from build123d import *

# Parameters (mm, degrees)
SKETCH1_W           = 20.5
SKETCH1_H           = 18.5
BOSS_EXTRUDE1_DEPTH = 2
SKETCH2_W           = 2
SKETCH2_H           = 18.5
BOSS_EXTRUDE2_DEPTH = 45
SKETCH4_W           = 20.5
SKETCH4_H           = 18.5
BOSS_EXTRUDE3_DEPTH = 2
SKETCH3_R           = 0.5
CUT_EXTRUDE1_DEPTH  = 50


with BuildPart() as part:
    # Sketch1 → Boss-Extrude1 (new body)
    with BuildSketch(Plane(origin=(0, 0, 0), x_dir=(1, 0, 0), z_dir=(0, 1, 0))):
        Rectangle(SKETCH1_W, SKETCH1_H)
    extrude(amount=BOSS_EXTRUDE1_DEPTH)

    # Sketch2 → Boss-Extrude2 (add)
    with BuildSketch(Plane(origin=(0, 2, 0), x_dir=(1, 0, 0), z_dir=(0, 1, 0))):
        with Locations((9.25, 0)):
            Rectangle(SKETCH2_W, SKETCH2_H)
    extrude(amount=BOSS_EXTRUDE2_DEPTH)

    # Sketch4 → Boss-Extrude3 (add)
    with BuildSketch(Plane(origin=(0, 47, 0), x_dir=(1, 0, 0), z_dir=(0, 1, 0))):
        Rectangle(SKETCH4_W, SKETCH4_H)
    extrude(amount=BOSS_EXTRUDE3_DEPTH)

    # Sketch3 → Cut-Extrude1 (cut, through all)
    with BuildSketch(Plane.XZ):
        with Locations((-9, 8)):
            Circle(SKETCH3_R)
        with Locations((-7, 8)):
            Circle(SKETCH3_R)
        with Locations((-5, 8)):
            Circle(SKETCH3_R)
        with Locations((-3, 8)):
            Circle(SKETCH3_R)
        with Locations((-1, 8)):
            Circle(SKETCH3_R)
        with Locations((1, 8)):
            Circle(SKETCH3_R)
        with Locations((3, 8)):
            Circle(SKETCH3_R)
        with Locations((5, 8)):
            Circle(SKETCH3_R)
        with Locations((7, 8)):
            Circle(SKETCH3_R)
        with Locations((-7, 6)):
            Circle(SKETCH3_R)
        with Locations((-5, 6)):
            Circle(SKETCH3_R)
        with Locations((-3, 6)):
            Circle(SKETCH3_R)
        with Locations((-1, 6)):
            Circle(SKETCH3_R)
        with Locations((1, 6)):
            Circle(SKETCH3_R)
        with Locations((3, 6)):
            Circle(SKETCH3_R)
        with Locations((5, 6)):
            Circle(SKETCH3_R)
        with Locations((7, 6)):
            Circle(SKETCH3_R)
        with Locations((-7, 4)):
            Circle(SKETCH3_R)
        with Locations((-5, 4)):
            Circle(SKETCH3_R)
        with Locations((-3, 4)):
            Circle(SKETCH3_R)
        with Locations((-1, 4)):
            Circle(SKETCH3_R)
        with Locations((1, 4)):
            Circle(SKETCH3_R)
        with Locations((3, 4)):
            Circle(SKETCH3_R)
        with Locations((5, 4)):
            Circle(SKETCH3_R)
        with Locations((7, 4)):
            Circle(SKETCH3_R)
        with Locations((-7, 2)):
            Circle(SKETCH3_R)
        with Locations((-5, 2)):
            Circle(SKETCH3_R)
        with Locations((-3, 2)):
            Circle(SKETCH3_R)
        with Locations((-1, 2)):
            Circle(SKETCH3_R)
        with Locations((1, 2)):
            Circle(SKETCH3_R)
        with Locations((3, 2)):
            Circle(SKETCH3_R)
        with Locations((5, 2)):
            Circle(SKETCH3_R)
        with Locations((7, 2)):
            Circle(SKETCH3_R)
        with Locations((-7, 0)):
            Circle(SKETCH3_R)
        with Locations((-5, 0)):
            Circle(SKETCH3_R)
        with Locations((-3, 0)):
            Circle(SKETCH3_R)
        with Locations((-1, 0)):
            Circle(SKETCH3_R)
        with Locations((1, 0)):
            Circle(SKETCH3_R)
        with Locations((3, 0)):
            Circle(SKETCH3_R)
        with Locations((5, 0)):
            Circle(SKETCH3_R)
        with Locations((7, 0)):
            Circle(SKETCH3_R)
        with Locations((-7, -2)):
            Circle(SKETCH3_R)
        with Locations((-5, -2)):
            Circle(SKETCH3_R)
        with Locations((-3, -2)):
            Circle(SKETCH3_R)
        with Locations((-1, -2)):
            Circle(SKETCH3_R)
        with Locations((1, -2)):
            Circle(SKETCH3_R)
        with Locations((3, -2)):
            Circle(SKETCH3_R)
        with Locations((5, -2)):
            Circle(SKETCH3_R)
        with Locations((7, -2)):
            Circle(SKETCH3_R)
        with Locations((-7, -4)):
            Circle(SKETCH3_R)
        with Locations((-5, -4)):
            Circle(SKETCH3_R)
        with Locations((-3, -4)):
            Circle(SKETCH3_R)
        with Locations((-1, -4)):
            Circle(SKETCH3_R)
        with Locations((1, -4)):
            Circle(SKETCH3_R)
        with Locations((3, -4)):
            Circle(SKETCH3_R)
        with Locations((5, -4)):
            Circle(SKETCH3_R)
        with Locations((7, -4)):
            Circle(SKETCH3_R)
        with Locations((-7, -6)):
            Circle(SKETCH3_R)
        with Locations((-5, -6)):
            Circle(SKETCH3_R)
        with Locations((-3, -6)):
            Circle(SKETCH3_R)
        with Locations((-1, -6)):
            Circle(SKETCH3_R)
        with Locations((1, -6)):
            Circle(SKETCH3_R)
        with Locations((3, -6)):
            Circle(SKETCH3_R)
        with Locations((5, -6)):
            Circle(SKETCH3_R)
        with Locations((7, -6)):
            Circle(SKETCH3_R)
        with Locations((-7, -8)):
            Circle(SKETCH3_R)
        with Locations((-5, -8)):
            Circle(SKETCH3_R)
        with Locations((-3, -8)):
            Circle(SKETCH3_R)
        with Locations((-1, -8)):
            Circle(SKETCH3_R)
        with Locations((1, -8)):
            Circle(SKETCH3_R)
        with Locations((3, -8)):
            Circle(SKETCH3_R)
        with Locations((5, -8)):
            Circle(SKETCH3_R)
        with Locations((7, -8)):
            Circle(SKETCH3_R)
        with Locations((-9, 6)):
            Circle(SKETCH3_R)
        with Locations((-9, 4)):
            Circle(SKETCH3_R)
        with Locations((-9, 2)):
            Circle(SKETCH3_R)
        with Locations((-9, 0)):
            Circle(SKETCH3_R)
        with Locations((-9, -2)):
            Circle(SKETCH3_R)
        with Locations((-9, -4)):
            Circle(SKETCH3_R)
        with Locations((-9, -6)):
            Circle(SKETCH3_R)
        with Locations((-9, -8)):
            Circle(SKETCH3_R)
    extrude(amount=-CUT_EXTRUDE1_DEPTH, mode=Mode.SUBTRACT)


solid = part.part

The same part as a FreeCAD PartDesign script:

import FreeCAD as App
import Part
import Sketcher
from FreeCAD import Vector

doc = App.newDocument("Part")
body = doc.addObject("PartDesign::Body", "Body")

sketch1 = body.newObject("Sketcher::SketchObject", "Sketch")
sketch1.AttachmentSupport = (doc.getObject("XZ_Plane"), [""])
sketch1.MapMode = "FlatFace"
sketch1.addGeometry(Part.LineSegment(Vector(-10.25, -9.25, 0), Vector(-10.25, 9.25, 0)), False)
sketch1.addGeometry(Part.LineSegment(Vector(-10.25, 9.25, 0), Vector(10.25, 9.25, 0)), False)
sketch1.addGeometry(Part.LineSegment(Vector(10.25, 9.25, 0), Vector(10.25, -9.25, 0)), False)
sketch1.addGeometry(Part.LineSegment(Vector(10.25, -9.25, 0), Vector(-10.25, -9.25, 0)), False)
sketch1.addConstraint(Sketcher.Constraint("Coincident", 0, 2, 1, 1))
sketch1.addConstraint(Sketcher.Constraint("Coincident", 1, 2, 2, 1))
sketch1.addConstraint(Sketcher.Constraint("Coincident", 2, 2, 3, 1))
sketch1.addConstraint(Sketcher.Constraint("Coincident", 3, 2, 0, 1))
sketch1.addConstraint(Sketcher.Constraint("Vertical", 0))
sketch1.addConstraint(Sketcher.Constraint("Horizontal", 1))
sketch1.addConstraint(Sketcher.Constraint("Vertical", 2))
sketch1.addConstraint(Sketcher.Constraint("Horizontal", 3))
sketch1.addConstraint(Sketcher.Constraint("Symmetric", 0, 2, 2, 2, -1, 1))
sketch1.addConstraint(Sketcher.Constraint("DistanceX", 1, 1, 1, 2, 20.5))
sketch1.addConstraint(Sketcher.Constraint("DistanceY", 0, 1, 0, 2, 18.5))
pad1 = body.newObject("PartDesign::Pad", "Pad")
pad1.Profile = sketch1
pad1.Length = 2
pad1.Reversed = True

sketch2 = body.newObject("Sketcher::SketchObject", "Sketch001")
sketch2.AttachmentSupport = (doc.getObject("XZ_Plane"), [""])
sketch2.MapMode = "FlatFace"
sketch2.AttachmentOffset = App.Placement(Vector(0, 0, -2), App.Rotation())
sketch2.addGeometry(Part.LineSegment(Vector(8.25, -9.25, 0), Vector(8.25, 9.25, 0)), False)
sketch2.addGeometry(Part.LineSegment(Vector(8.25, 9.25, 0), Vector(10.25, 9.25, 0)), False)
sketch2.addGeometry(Part.LineSegment(Vector(10.25, 9.25, 0), Vector(10.25, -9.25, 0)), False)
sketch2.addGeometry(Part.LineSegment(Vector(10.25, -9.25, 0), Vector(8.25, -9.25, 0)), False)
sketch2.addConstraint(Sketcher.Constraint("Coincident", 0, 2, 1, 1))
sketch2.addConstraint(Sketcher.Constraint("Coincident", 1, 2, 2, 1))
sketch2.addConstraint(Sketcher.Constraint("Coincident", 2, 2, 3, 1))
sketch2.addConstraint(Sketcher.Constraint("Coincident", 3, 2, 0, 1))
sketch2.addConstraint(Sketcher.Constraint("Vertical", 0))
sketch2.addConstraint(Sketcher.Constraint("Horizontal", 1))
sketch2.addConstraint(Sketcher.Constraint("Vertical", 2))
sketch2.addConstraint(Sketcher.Constraint("Horizontal", 3))
sketch2.addConstraint(Sketcher.Constraint("DistanceX", 1, 1, 1, 2, 2.0))
sketch2.addConstraint(Sketcher.Constraint("DistanceY", 0, 1, 0, 2, 18.5))
sketch2.addConstraint(Sketcher.Constraint("DistanceX", -1, 1, 0, 2, 8.25))
sketch2.addConstraint(Sketcher.Constraint("DistanceY", -1, 1, 0, 2, 9.25))
pad2 = body.newObject("PartDesign::Pad", "Pad001")
pad2.Profile = sketch2
pad2.Length = 45
pad2.Reversed = True

sketch3 = body.newObject("Sketcher::SketchObject", "Sketch002")
sketch3.AttachmentSupport = (doc.getObject("XZ_Plane"), [""])
sketch3.MapMode = "FlatFace"
sketch3.AttachmentOffset = App.Placement(Vector(0, 0, -47), App.Rotation())
sketch3.addGeometry(Part.LineSegment(Vector(-10.25, -9.25, 0), Vector(-10.25, 9.25, 0)), False)
sketch3.addGeometry(Part.LineSegment(Vector(-10.25, 9.25, 0), Vector(10.25, 9.25, 0)), False)
sketch3.addGeometry(Part.LineSegment(Vector(10.25, 9.25, 0), Vector(10.25, -9.25, 0)), False)
sketch3.addGeometry(Part.LineSegment(Vector(10.25, -9.25, 0), Vector(-10.25, -9.25, 0)), False)
sketch3.addConstraint(Sketcher.Constraint("Coincident", 0, 2, 1, 1))
sketch3.addConstraint(Sketcher.Constraint("Coincident", 1, 2, 2, 1))
sketch3.addConstraint(Sketcher.Constraint("Coincident", 2, 2, 3, 1))
sketch3.addConstraint(Sketcher.Constraint("Coincident", 3, 2, 0, 1))
sketch3.addConstraint(Sketcher.Constraint("Vertical", 0))
sketch3.addConstraint(Sketcher.Constraint("Horizontal", 1))
sketch3.addConstraint(Sketcher.Constraint("Vertical", 2))
sketch3.addConstraint(Sketcher.Constraint("Horizontal", 3))
sketch3.addConstraint(Sketcher.Constraint("Symmetric", 0, 2, 2, 2, -1, 1))
sketch3.addConstraint(Sketcher.Constraint("DistanceX", 1, 1, 1, 2, 20.5))
sketch3.addConstraint(Sketcher.Constraint("DistanceY", 0, 1, 0, 2, 18.5))
pad3 = body.newObject("PartDesign::Pad", "Pad002")
pad3.Profile = sketch3
pad3.Length = 2
pad3.Reversed = True

sketch4 = body.newObject("Sketcher::SketchObject", "Sketch003")
sketch4.AttachmentSupport = (doc.getObject("XZ_Plane"), [""])
sketch4.MapMode = "FlatFace"
sketch4.addGeometry(Part.Circle(Vector(-9, 8, 0), Vector(0, 0, 1), 0.5), False)
sketch4.addGeometry(Part.Circle(Vector(-7, 8, 0), Vector(0, 0, 1), 0.5), False)
sketch4.addGeometry(Part.Circle(Vector(-5, 8, 0), Vector(0, 0, 1), 0.5), False)
sketch4.addGeometry(Part.Circle(Vector(-3, 8, 0), Vector(0, 0, 1), 0.5), False)
sketch4.addGeometry(Part.Circle(Vector(-1, 8, 0), Vector(0, 0, 1), 0.5), False)
sketch4.addGeometry(Part.Circle(Vector(1, 8, 0), Vector(0, 0, 1), 0.5), False)
sketch4.addGeometry(Part.Circle(Vector(3, 8, 0), Vector(0, 0, 1), 0.5), False)
sketch4.addGeometry(Part.Circle(Vector(5, 8, 0), Vector(0, 0, 1), 0.5), False)
sketch4.addGeometry(Part.Circle(Vector(7, 8, 0), Vector(0, 0, 1), 0.5), False)
sketch4.addGeometry(Part.Circle(Vector(-7, 6, 0), Vector(0, 0, 1), 0.5), False)
sketch4.addGeometry(Part.Circle(Vector(-5, 6, 0), Vector(0, 0, 1), 0.5), False)
sketch4.addGeometry(Part.Circle(Vector(-3, 6, 0), Vector(0, 0, 1), 0.5), False)
sketch4.addGeometry(Part.Circle(Vector(-1, 6, 0), Vector(0, 0, 1), 0.5), False)
sketch4.addGeometry(Part.Circle(Vector(1, 6, 0), Vector(0, 0, 1), 0.5), False)
sketch4.addGeometry(Part.Circle(Vector(3, 6, 0), Vector(0, 0, 1), 0.5), False)
sketch4.addGeometry(Part.Circle(Vector(5, 6, 0), Vector(0, 0, 1), 0.5), False)
sketch4.addGeometry(Part.Circle(Vector(7, 6, 0), Vector(0, 0, 1), 0.5), False)
sketch4.addGeometry(Part.Circle(Vector(-7, 4, 0), Vector(0, 0, 1), 0.5), False)
sketch4.addGeometry(Part.Circle(Vector(-5, 4, 0), Vector(0, 0, 1), 0.5), False)
sketch4.addGeometry(Part.Circle(Vector(-3, 4, 0), Vector(0, 0, 1), 0.5), False)
sketch4.addGeometry(Part.Circle(Vector(-1, 4, 0), Vector(0, 0, 1), 0.5), False)
sketch4.addGeometry(Part.Circle(Vector(1, 4, 0), Vector(0, 0, 1), 0.5), False)
sketch4.addGeometry(Part.Circle(Vector(3, 4, 0), Vector(0, 0, 1), 0.5), False)
sketch4.addGeometry(Part.Circle(Vector(5, 4, 0), Vector(0, 0, 1), 0.5), False)
sketch4.addGeometry(Part.Circle(Vector(7, 4, 0), Vector(0, 0, 1), 0.5), False)
sketch4.addGeometry(Part.Circle(Vector(-7, 2, 0), Vector(0, 0, 1), 0.5), False)
sketch4.addGeometry(Part.Circle(Vector(-5, 2, 0), Vector(0, 0, 1), 0.5), False)
sketch4.addGeometry(Part.Circle(Vector(-3, 2, 0), Vector(0, 0, 1), 0.5), False)
sketch4.addGeometry(Part.Circle(Vector(-1, 2, 0), Vector(0, 0, 1), 0.5), False)
sketch4.addGeometry(Part.Circle(Vector(1, 2, 0), Vector(0, 0, 1), 0.5), False)
sketch4.addGeometry(Part.Circle(Vector(3, 2, 0), Vector(0, 0, 1), 0.5), False)
sketch4.addGeometry(Part.Circle(Vector(5, 2, 0), Vector(0, 0, 1), 0.5), False)
sketch4.addGeometry(Part.Circle(Vector(7, 2, 0), Vector(0, 0, 1), 0.5), False)
sketch4.addGeometry(Part.Circle(Vector(-7, 0, 0), Vector(0, 0, 1), 0.5), False)
sketch4.addGeometry(Part.Circle(Vector(-5, 0, 0), Vector(0, 0, 1), 0.5), False)
sketch4.addGeometry(Part.Circle(Vector(-3, 0, 0), Vector(0, 0, 1), 0.5), False)
sketch4.addGeometry(Part.Circle(Vector(-1, 0, 0), Vector(0, 0, 1), 0.5), False)
sketch4.addGeometry(Part.Circle(Vector(1, 0, 0), Vector(0, 0, 1), 0.5), False)
sketch4.addGeometry(Part.Circle(Vector(3, 0, 0), Vector(0, 0, 1), 0.5), False)
sketch4.addGeometry(Part.Circle(Vector(5, 0, 0), Vector(0, 0, 1), 0.5), False)
sketch4.addGeometry(Part.Circle(Vector(7, 0, 0), Vector(0, 0, 1), 0.5), False)
sketch4.addGeometry(Part.Circle(Vector(-7, -2, 0), Vector(0, 0, 1), 0.5), False)
sketch4.addGeometry(Part.Circle(Vector(-5, -2, 0), Vector(0, 0, 1), 0.5), False)
sketch4.addGeometry(Part.Circle(Vector(-3, -2, 0), Vector(0, 0, 1), 0.5), False)
sketch4.addGeometry(Part.Circle(Vector(-1, -2, 0), Vector(0, 0, 1), 0.5), False)
sketch4.addGeometry(Part.Circle(Vector(1, -2, 0), Vector(0, 0, 1), 0.5), False)
sketch4.addGeometry(Part.Circle(Vector(3, -2, 0), Vector(0, 0, 1), 0.5), False)
sketch4.addGeometry(Part.Circle(Vector(5, -2, 0), Vector(0, 0, 1), 0.5), False)
sketch4.addGeometry(Part.Circle(Vector(7, -2, 0), Vector(0, 0, 1), 0.5), False)
sketch4.addGeometry(Part.Circle(Vector(-7, -4, 0), Vector(0, 0, 1), 0.5), False)
sketch4.addGeometry(Part.Circle(Vector(-5, -4, 0), Vector(0, 0, 1), 0.5), False)
sketch4.addGeometry(Part.Circle(Vector(-3, -4, 0), Vector(0, 0, 1), 0.5), False)
sketch4.addGeometry(Part.Circle(Vector(-1, -4, 0), Vector(0, 0, 1), 0.5), False)
sketch4.addGeometry(Part.Circle(Vector(1, -4, 0), Vector(0, 0, 1), 0.5), False)
sketch4.addGeometry(Part.Circle(Vector(3, -4, 0), Vector(0, 0, 1), 0.5), False)
sketch4.addGeometry(Part.Circle(Vector(5, -4, 0), Vector(0, 0, 1), 0.5), False)
sketch4.addGeometry(Part.Circle(Vector(7, -4, 0), Vector(0, 0, 1), 0.5), False)
sketch4.addGeometry(Part.Circle(Vector(-7, -6, 0), Vector(0, 0, 1), 0.5), False)
sketch4.addGeometry(Part.Circle(Vector(-5, -6, 0), Vector(0, 0, 1), 0.5), False)
sketch4.addGeometry(Part.Circle(Vector(-3, -6, 0), Vector(0, 0, 1), 0.5), False)
sketch4.addGeometry(Part.Circle(Vector(-1, -6, 0), Vector(0, 0, 1), 0.5), False)
sketch4.addGeometry(Part.Circle(Vector(1, -6, 0), Vector(0, 0, 1), 0.5), False)
sketch4.addGeometry(Part.Circle(Vector(3, -6, 0), Vector(0, 0, 1), 0.5), False)
sketch4.addGeometry(Part.Circle(Vector(5, -6, 0), Vector(0, 0, 1), 0.5), False)
sketch4.addGeometry(Part.Circle(Vector(7, -6, 0), Vector(0, 0, 1), 0.5), False)
sketch4.addGeometry(Part.Circle(Vector(-7, -8, 0), Vector(0, 0, 1), 0.5), False)
sketch4.addGeometry(Part.Circle(Vector(-5, -8, 0), Vector(0, 0, 1), 0.5), False)
sketch4.addGeometry(Part.Circle(Vector(-3, -8, 0), Vector(0, 0, 1), 0.5), False)
sketch4.addGeometry(Part.Circle(Vector(-1, -8, 0), Vector(0, 0, 1), 0.5), False)
sketch4.addGeometry(Part.Circle(Vector(1, -8, 0), Vector(0, 0, 1), 0.5), False)
sketch4.addGeometry(Part.Circle(Vector(3, -8, 0), Vector(0, 0, 1), 0.5), False)
sketch4.addGeometry(Part.Circle(Vector(5, -8, 0), Vector(0, 0, 1), 0.5), False)
sketch4.addGeometry(Part.Circle(Vector(7, -8, 0), Vector(0, 0, 1), 0.5), False)
sketch4.addGeometry(Part.Circle(Vector(-9, 6, 0), Vector(0, 0, 1), 0.5), False)
sketch4.addGeometry(Part.Circle(Vector(-9, 4, 0), Vector(0, 0, 1), 0.5), False)
sketch4.addGeometry(Part.Circle(Vector(-9, 2, 0), Vector(0, 0, 1), 0.5), False)
sketch4.addGeometry(Part.Circle(Vector(-9, 0, 0), Vector(0, 0, 1), 0.5), False)
sketch4.addGeometry(Part.Circle(Vector(-9, -2, 0), Vector(0, 0, 1), 0.5), False)
sketch4.addGeometry(Part.Circle(Vector(-9, -4, 0), Vector(0, 0, 1), 0.5), False)
sketch4.addGeometry(Part.Circle(Vector(-9, -6, 0), Vector(0, 0, 1), 0.5), False)
sketch4.addGeometry(Part.Circle(Vector(-9, -8, 0), Vector(0, 0, 1), 0.5), False)
sketch4.addConstraint(Sketcher.Constraint("Equal", 0, 1))
sketch4.addConstraint(Sketcher.Constraint("Equal", 1, 2))
sketch4.addConstraint(Sketcher.Constraint("Equal", 2, 3))
sketch4.addConstraint(Sketcher.Constraint("Equal", 3, 4))
sketch4.addConstraint(Sketcher.Constraint("Equal", 4, 5))
sketch4.addConstraint(Sketcher.Constraint("Equal", 5, 6))
sketch4.addConstraint(Sketcher.Constraint("Equal", 6, 7))
sketch4.addConstraint(Sketcher.Constraint("Equal", 7, 8))
sketch4.addConstraint(Sketcher.Constraint("Equal", 8, 9))
sketch4.addConstraint(Sketcher.Constraint("Equal", 9, 10))
sketch4.addConstraint(Sketcher.Constraint("Equal", 10, 11))
sketch4.addConstraint(Sketcher.Constraint("Equal", 11, 12))
sketch4.addConstraint(Sketcher.Constraint("Equal", 12, 13))
sketch4.addConstraint(Sketcher.Constraint("Equal", 13, 14))
sketch4.addConstraint(Sketcher.Constraint("Equal", 14, 15))
sketch4.addConstraint(Sketcher.Constraint("Equal", 15, 16))
sketch4.addConstraint(Sketcher.Constraint("Equal", 16, 17))
sketch4.addConstraint(Sketcher.Constraint("Equal", 17, 18))
sketch4.addConstraint(Sketcher.Constraint("Equal", 18, 19))
sketch4.addConstraint(Sketcher.Constraint("Equal", 19, 20))
sketch4.addConstraint(Sketcher.Constraint("Equal", 20, 21))
sketch4.addConstraint(Sketcher.Constraint("Equal", 21, 22))
sketch4.addConstraint(Sketcher.Constraint("Equal", 22, 23))
sketch4.addConstraint(Sketcher.Constraint("Equal", 23, 24))
sketch4.addConstraint(Sketcher.Constraint("Equal", 24, 25))
sketch4.addConstraint(Sketcher.Constraint("Equal", 25, 26))
sketch4.addConstraint(Sketcher.Constraint("Equal", 26, 27))
sketch4.addConstraint(Sketcher.Constraint("Equal", 27, 28))
sketch4.addConstraint(Sketcher.Constraint("Equal", 28, 29))
sketch4.addConstraint(Sketcher.Constraint("Equal", 29, 30))
sketch4.addConstraint(Sketcher.Constraint("Equal", 30, 31))
sketch4.addConstraint(Sketcher.Constraint("Equal", 31, 32))
sketch4.addConstraint(Sketcher.Constraint("Equal", 32, 33))
sketch4.addConstraint(Sketcher.Constraint("Equal", 33, 34))
sketch4.addConstraint(Sketcher.Constraint("Equal", 34, 35))
sketch4.addConstraint(Sketcher.Constraint("Equal", 35, 36))
sketch4.addConstraint(Sketcher.Constraint("Equal", 36, 37))
sketch4.addConstraint(Sketcher.Constraint("Equal", 37, 38))
sketch4.addConstraint(Sketcher.Constraint("Equal", 38, 39))
sketch4.addConstraint(Sketcher.Constraint("Equal", 39, 40))
sketch4.addConstraint(Sketcher.Constraint("Equal", 40, 41))
sketch4.addConstraint(Sketcher.Constraint("Equal", 41, 42))
sketch4.addConstraint(Sketcher.Constraint("Equal", 42, 43))
sketch4.addConstraint(Sketcher.Constraint("Equal", 43, 44))
sketch4.addConstraint(Sketcher.Constraint("Equal", 44, 45))
sketch4.addConstraint(Sketcher.Constraint("Equal", 45, 46))
sketch4.addConstraint(Sketcher.Constraint("Equal", 46, 47))
sketch4.addConstraint(Sketcher.Constraint("Equal", 47, 48))
sketch4.addConstraint(Sketcher.Constraint("Equal", 48, 49))
sketch4.addConstraint(Sketcher.Constraint("Equal", 49, 50))
sketch4.addConstraint(Sketcher.Constraint("Equal", 50, 51))
sketch4.addConstraint(Sketcher.Constraint("Equal", 51, 52))
sketch4.addConstraint(Sketcher.Constraint("Equal", 52, 53))
sketch4.addConstraint(Sketcher.Constraint("Equal", 53, 54))
sketch4.addConstraint(Sketcher.Constraint("Equal", 54, 55))
sketch4.addConstraint(Sketcher.Constraint("Equal", 55, 56))
sketch4.addConstraint(Sketcher.Constraint("Equal", 56, 57))
sketch4.addConstraint(Sketcher.Constraint("Equal", 57, 58))
sketch4.addConstraint(Sketcher.Constraint("Equal", 58, 59))
sketch4.addConstraint(Sketcher.Constraint("Equal", 59, 60))
sketch4.addConstraint(Sketcher.Constraint("Equal", 60, 61))
sketch4.addConstraint(Sketcher.Constraint("Equal", 61, 62))
sketch4.addConstraint(Sketcher.Constraint("Equal", 62, 63))
sketch4.addConstraint(Sketcher.Constraint("Equal", 63, 64))
sketch4.addConstraint(Sketcher.Constraint("Equal", 64, 65))
sketch4.addConstraint(Sketcher.Constraint("Equal", 65, 66))
sketch4.addConstraint(Sketcher.Constraint("Equal", 66, 67))
sketch4.addConstraint(Sketcher.Constraint("Equal", 67, 68))
sketch4.addConstraint(Sketcher.Constraint("Equal", 68, 69))
sketch4.addConstraint(Sketcher.Constraint("Equal", 69, 70))
sketch4.addConstraint(Sketcher.Constraint("Equal", 70, 71))
sketch4.addConstraint(Sketcher.Constraint("Equal", 71, 72))
sketch4.addConstraint(Sketcher.Constraint("Equal", 72, 73))
sketch4.addConstraint(Sketcher.Constraint("Equal", 73, 74))
sketch4.addConstraint(Sketcher.Constraint("Equal", 74, 75))
sketch4.addConstraint(Sketcher.Constraint("Equal", 75, 76))
sketch4.addConstraint(Sketcher.Constraint("Equal", 76, 77))
sketch4.addConstraint(Sketcher.Constraint("Equal", 77, 78))
sketch4.addConstraint(Sketcher.Constraint("Equal", 78, 79))
sketch4.addConstraint(Sketcher.Constraint("Equal", 79, 80))
sketch4.addConstraint(Sketcher.Constraint("Symmetric", 36, 3, 37, 3, -1, 1))
sketch4.addConstraint(Sketcher.Constraint("Symmetric", 35, 3, 38, 3, -1, 1))
sketch4.addConstraint(Sketcher.Constraint("Symmetric", 34, 3, 39, 3, -1, 1))
sketch4.addConstraint(Sketcher.Constraint("Symmetric", 33, 3, 40, 3, -1, 1))
sketch4.addConstraint(Sketcher.Constraint("Symmetric", 32, 3, 41, 3, -1, 1))
sketch4.addConstraint(Sketcher.Constraint("Symmetric", 31, 3, 42, 3, -1, 1))
sketch4.addConstraint(Sketcher.Constraint("Symmetric", 30, 3, 43, 3, -1, 1))
sketch4.addConstraint(Sketcher.Constraint("Symmetric", 29, 3, 44, 3, -1, 1))
sketch4.addConstraint(Sketcher.Constraint("Symmetric", 28, 3, 45, 3, -1, 1))
sketch4.addConstraint(Sketcher.Constraint("Symmetric", 27, 3, 46, 3, -1, 1))
sketch4.addConstraint(Sketcher.Constraint("Symmetric", 26, 3, 47, 3, -1, 1))
sketch4.addConstraint(Sketcher.Constraint("Symmetric", 25, 3, 48, 3, -1, 1))
sketch4.addConstraint(Sketcher.Constraint("Symmetric", 24, 3, 49, 3, -1, 1))
sketch4.addConstraint(Sketcher.Constraint("Symmetric", 23, 3, 50, 3, -1, 1))
sketch4.addConstraint(Sketcher.Constraint("Symmetric", 22, 3, 51, 3, -1, 1))
sketch4.addConstraint(Sketcher.Constraint("Symmetric", 21, 3, 52, 3, -1, 1))
sketch4.addConstraint(Sketcher.Constraint("Symmetric", 20, 3, 53, 3, -1, 1))
sketch4.addConstraint(Sketcher.Constraint("Symmetric", 19, 3, 54, 3, -1, 1))
sketch4.addConstraint(Sketcher.Constraint("Symmetric", 18, 3, 55, 3, -1, 1))
sketch4.addConstraint(Sketcher.Constraint("Symmetric", 17, 3, 56, 3, -1, 1))
sketch4.addConstraint(Sketcher.Constraint("Symmetric", 16, 3, 57, 3, -1, 1))
sketch4.addConstraint(Sketcher.Constraint("Symmetric", 15, 3, 58, 3, -1, 1))
sketch4.addConstraint(Sketcher.Constraint("Symmetric", 14, 3, 59, 3, -1, 1))
sketch4.addConstraint(Sketcher.Constraint("Symmetric", 13, 3, 60, 3, -1, 1))
sketch4.addConstraint(Sketcher.Constraint("Symmetric", 12, 3, 61, 3, -1, 1))
sketch4.addConstraint(Sketcher.Constraint("Symmetric", 11, 3, 62, 3, -1, 1))
sketch4.addConstraint(Sketcher.Constraint("Symmetric", 10, 3, 63, 3, -1, 1))
sketch4.addConstraint(Sketcher.Constraint("Symmetric", 9, 3, 64, 3, -1, 1))
sketch4.addConstraint(Sketcher.Constraint("Symmetric", 8, 3, 65, 3, -1, 1))
sketch4.addConstraint(Sketcher.Constraint("Symmetric", 7, 3, 66, 3, -1, 1))
sketch4.addConstraint(Sketcher.Constraint("Symmetric", 6, 3, 67, 3, -1, 1))
sketch4.addConstraint(Sketcher.Constraint("Symmetric", 5, 3, 68, 3, -1, 1))
sketch4.addConstraint(Sketcher.Constraint("Symmetric", 4, 3, 69, 3, -1, 1))
sketch4.addConstraint(Sketcher.Constraint("Symmetric", 3, 3, 70, 3, -1, 1))
sketch4.addConstraint(Sketcher.Constraint("Symmetric", 2, 3, 71, 3, -1, 1))
sketch4.addConstraint(Sketcher.Constraint("Symmetric", 1, 3, 72, 3, -1, 1))
sketch4.addConstraint(Sketcher.Constraint("Symmetric", 4, 3, 5, 3, -2))
sketch4.addConstraint(Sketcher.Constraint("Symmetric", 3, 3, 6, 3, -2))
sketch4.addConstraint(Sketcher.Constraint("Symmetric", 2, 3, 7, 3, -2))
sketch4.addConstraint(Sketcher.Constraint("Symmetric", 1, 3, 8, 3, -2))
sketch4.addConstraint(Sketcher.Constraint("Symmetric", 12, 3, 13, 3, -2))
sketch4.addConstraint(Sketcher.Constraint("Symmetric", 11, 3, 14, 3, -2))
sketch4.addConstraint(Sketcher.Constraint("Symmetric", 10, 3, 15, 3, -2))
sketch4.addConstraint(Sketcher.Constraint("Symmetric", 9, 3, 16, 3, -2))
sketch4.addConstraint(Sketcher.Constraint("Symmetric", 20, 3, 21, 3, -2))
sketch4.addConstraint(Sketcher.Constraint("Symmetric", 19, 3, 22, 3, -2))
sketch4.addConstraint(Sketcher.Constraint("Symmetric", 18, 3, 23, 3, -2))
sketch4.addConstraint(Sketcher.Constraint("Symmetric", 17, 3, 24, 3, -2))
sketch4.addConstraint(Sketcher.Constraint("Symmetric", 28, 3, 29, 3, -2))
sketch4.addConstraint(Sketcher.Constraint("Symmetric", 27, 3, 30, 3, -2))
sketch4.addConstraint(Sketcher.Constraint("Symmetric", 26, 3, 31, 3, -2))
sketch4.addConstraint(Sketcher.Constraint("Symmetric", 25, 3, 32, 3, -2))
sketch4.addConstraint(Sketcher.Constraint("Symmetric", 75, 3, 77, 3, -1))
sketch4.addConstraint(Sketcher.Constraint("Symmetric", 74, 3, 78, 3, -1))
sketch4.addConstraint(Sketcher.Constraint("Symmetric", 73, 3, 79, 3, -1))
sketch4.addConstraint(Sketcher.Constraint("Symmetric", 0, 3, 80, 3, -1))
sketch4.addConstraint(Sketcher.Constraint("PointOnObject", 33, 3, -1))
sketch4.addConstraint(Sketcher.Constraint("PointOnObject", 34, 3, -1))
sketch4.addConstraint(Sketcher.Constraint("PointOnObject", 35, 3, -1))
sketch4.addConstraint(Sketcher.Constraint("PointOnObject", 36, 3, -1))
sketch4.addConstraint(Sketcher.Constraint("PointOnObject", 76, 3, -1))
sketch4.addConstraint(Sketcher.Constraint("Horizontal", 0, 3, 1, 3))
sketch4.addConstraint(Sketcher.Constraint("Horizontal", 1, 3, 2, 3))
sketch4.addConstraint(Sketcher.Constraint("Horizontal", 2, 3, 3, 3))
sketch4.addConstraint(Sketcher.Constraint("Horizontal", 3, 3, 4, 3))
sketch4.addConstraint(Sketcher.Constraint("Horizontal", 9, 3, 10, 3))
sketch4.addConstraint(Sketcher.Constraint("Horizontal", 10, 3, 11, 3))
sketch4.addConstraint(Sketcher.Constraint("Horizontal", 11, 3, 12, 3))
sketch4.addConstraint(Sketcher.Constraint("Horizontal", 17, 3, 18, 3))
sketch4.addConstraint(Sketcher.Constraint("Horizontal", 18, 3, 19, 3))
sketch4.addConstraint(Sketcher.Constraint("Horizontal", 19, 3, 20, 3))
sketch4.addConstraint(Sketcher.Constraint("Horizontal", 25, 3, 26, 3))
sketch4.addConstraint(Sketcher.Constraint("Horizontal", 26, 3, 27, 3))
sketch4.addConstraint(Sketcher.Constraint("Horizontal", 27, 3, 28, 3))
sketch4.addConstraint(Sketcher.Constraint("Horizontal", 16, 3, 73, 3))
sketch4.addConstraint(Sketcher.Constraint("Horizontal", 24, 3, 74, 3))
sketch4.addConstraint(Sketcher.Constraint("Horizontal", 32, 3, 75, 3))
sketch4.addConstraint(Sketcher.Constraint("Vertical", 1, 3, 9, 3))
sketch4.addConstraint(Sketcher.Constraint("Vertical", 2, 3, 10, 3))
sketch4.addConstraint(Sketcher.Constraint("Vertical", 3, 3, 11, 3))
sketch4.addConstraint(Sketcher.Constraint("Vertical", 4, 3, 12, 3))
sketch4.addConstraint(Sketcher.Constraint("Vertical", 9, 3, 17, 3))
sketch4.addConstraint(Sketcher.Constraint("Vertical", 10, 3, 18, 3))
sketch4.addConstraint(Sketcher.Constraint("Vertical", 11, 3, 19, 3))
sketch4.addConstraint(Sketcher.Constraint("Vertical", 12, 3, 20, 3))
sketch4.addConstraint(Sketcher.Constraint("Vertical", 17, 3, 25, 3))
sketch4.addConstraint(Sketcher.Constraint("Vertical", 18, 3, 26, 3))
sketch4.addConstraint(Sketcher.Constraint("Vertical", 19, 3, 27, 3))
sketch4.addConstraint(Sketcher.Constraint("Vertical", 20, 3, 28, 3))
sketch4.addConstraint(Sketcher.Constraint("Vertical", 25, 3, 33, 3))
sketch4.addConstraint(Sketcher.Constraint("Vertical", 26, 3, 34, 3))
sketch4.addConstraint(Sketcher.Constraint("Vertical", 27, 3, 35, 3))
sketch4.addConstraint(Sketcher.Constraint("Vertical", 28, 3, 36, 3))
sketch4.addConstraint(Sketcher.Constraint("Vertical", 0, 3, 73, 3))
sketch4.addConstraint(Sketcher.Constraint("Vertical", 73, 3, 74, 3))
sketch4.addConstraint(Sketcher.Constraint("Vertical", 74, 3, 75, 3))
sketch4.addConstraint(Sketcher.Constraint("Vertical", 75, 3, 76, 3))
sketch4.addConstraint(Sketcher.Constraint("Diameter", 0, 1.0))
sketch4.addConstraint(Sketcher.Constraint("DistanceX", 0, 3, -1, 1, 9.0))
sketch4.addConstraint(Sketcher.Constraint("DistanceY", -1, 1, 0, 3, 8.0))
sketch4.addConstraint(Sketcher.Constraint("DistanceX", 1, 3, -1, 1, 7.0))
sketch4.addConstraint(Sketcher.Constraint("DistanceX", 2, 3, -1, 1, 5.0))
sketch4.addConstraint(Sketcher.Constraint("DistanceX", 3, 3, -1, 1, 3.0))
sketch4.addConstraint(Sketcher.Constraint("DistanceX", 4, 3, -1, 1, 1.0))
sketch4.addConstraint(Sketcher.Constraint("DistanceY", -1, 1, 9, 3, 6.0))
sketch4.addConstraint(Sketcher.Constraint("DistanceY", -1, 1, 17, 3, 4.0))
sketch4.addConstraint(Sketcher.Constraint("DistanceY", -1, 1, 25, 3, 2.0))
pocket1 = body.newObject("PartDesign::Pocket", "Pocket")
pocket1.Profile = sketch4
pocket1.Type = "ThroughAll"

doc.recompute()
